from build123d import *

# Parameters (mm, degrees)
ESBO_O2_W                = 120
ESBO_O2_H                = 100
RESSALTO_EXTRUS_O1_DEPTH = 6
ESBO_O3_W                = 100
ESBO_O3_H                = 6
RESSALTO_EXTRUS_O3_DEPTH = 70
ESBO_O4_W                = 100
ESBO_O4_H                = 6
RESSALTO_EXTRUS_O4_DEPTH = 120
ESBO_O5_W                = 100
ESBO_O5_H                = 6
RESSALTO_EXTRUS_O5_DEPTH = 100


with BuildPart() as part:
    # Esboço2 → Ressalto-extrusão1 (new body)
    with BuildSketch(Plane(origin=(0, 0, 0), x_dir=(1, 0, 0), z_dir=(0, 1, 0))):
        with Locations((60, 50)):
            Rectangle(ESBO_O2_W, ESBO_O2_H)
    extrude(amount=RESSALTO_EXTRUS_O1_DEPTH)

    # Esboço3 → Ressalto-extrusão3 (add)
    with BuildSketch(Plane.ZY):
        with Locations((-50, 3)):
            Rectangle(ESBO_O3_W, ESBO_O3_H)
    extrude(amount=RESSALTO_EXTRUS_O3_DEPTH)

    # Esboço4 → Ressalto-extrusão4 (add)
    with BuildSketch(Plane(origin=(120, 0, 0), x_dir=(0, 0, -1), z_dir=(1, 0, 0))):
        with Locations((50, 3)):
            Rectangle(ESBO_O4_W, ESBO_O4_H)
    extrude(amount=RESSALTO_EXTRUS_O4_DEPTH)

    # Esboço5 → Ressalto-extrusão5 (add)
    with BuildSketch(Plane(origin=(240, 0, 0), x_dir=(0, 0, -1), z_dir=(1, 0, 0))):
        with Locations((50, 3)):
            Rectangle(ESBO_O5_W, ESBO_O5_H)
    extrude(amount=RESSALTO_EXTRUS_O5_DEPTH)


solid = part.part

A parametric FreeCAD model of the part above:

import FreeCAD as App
import Part
import Sketcher

V = App.Vector
Q = App.Units.Quantity


def add_polygon(sketch, points):
    """Adds a closed chain of lines whose ends are joined by coincident constraints."""
    first, n = sketch.GeometryCount, len(points)
    for a, b in zip(points, points[1:] + points[:1]):
        sketch.addGeometry(Part.LineSegment(App.Vector(*a, 0), App.Vector(*b, 0)), False)
    for i in range(n):
        sketch.addConstraint(Sketcher.Constraint("Coincident", first + i, 2, first + (i + 1) % n, 1))

doc = App.newDocument("Part")
params = doc.addObject("Spreadsheet::Sheet", "Params")
for row, (alias, value) in enumerate([
    ("sketch1_width", "120 mm"),
    ("sketch1_height", "100 mm"),
    ("pad1_length", "6 mm"),
    ("sketch2_width", "6 mm"),
    ("sketch2_height", "100 mm"),
    ("pad2_length", "70 mm"),
    ("sketch3_width", "6 mm"),
    ("sketch3_height", "100 mm"),
    ("pad3_length", "120 mm"),
    ("sketch4_width", "6 mm"),
    ("sketch4_height", "100 mm"),
    ("pad4_length", "100 mm"),
], start=1):
    params.set(f"A{row}", alias)
    params.set(f"B{row}", "=" + value)
    params.setAlias(f"B{row}", alias)

body = doc.addObject("PartDesign::Body", "Body")

sketch1 = doc.addObject("Sketcher::SketchObject", "Sketch")
body.addObject(sketch1)
sketch1.AttachmentSupport = (doc.XZ_Plane, [""])
sketch1.MapMode = "FlatFace"
add_polygon(sketch1, [(0, -100), (0, 0), (120, 0), (120, -100)])
sketch1.addConstraint(Sketcher.Constraint("Vertical", 0))
sketch1.addConstraint(Sketcher.Constraint("Horizontal", 1))
sketch1.addConstraint(Sketcher.Constraint("Vertical", 2))
sketch1.addConstraint(Sketcher.Constraint("Horizontal", 3))
sketch1.addConstraint(Sketcher.Constraint("Coincident", 0, 2, -1, 1))
sketch1.addConstraint(Sketcher.Constraint("DistanceX", 1, 1, 1, 2, Q("120 mm")))
sketch1.addConstraint(Sketcher.Constraint("DistanceY", 0, 1, 0, 2, Q("100 mm")))
sketch1.setExpression("Constraints[9]", "Params.sketch1_width")
sketch1.setExpression("Constraints[10]", "Params.sketch1_height")
pad1 = doc.addObject("PartDesign::Pad", "Pad")
body.addObject(pad1)
pad1.Profile = sketch1
pad1.setExpression("Length", "Params.pad1_length")
pad1.Reversed = True

sketch2 = doc.addObject("Sketcher::SketchObject", "Sketch001")
body.addObject(sketch2)
sketch2.AttachmentSupport = (doc.YZ_Plane, [""])
sketch2.MapMode = "FlatFace"
add_polygon(sketch2, [(6, -100), (0, -100), (0, 0), (6, 0)])
sketch2.addConstraint(Sketcher.Constraint("Horizontal", 0))
sketch2.addConstraint(Sketcher.Constraint("Vertical", 1))
sketch2.addConstraint(Sketcher.Constraint("Horizontal", 2))
sketch2.addConstraint(Sketcher.Constraint("Vertical", 3))
sketch2.addConstraint(Sketcher.Constraint("Coincident", 1, 2, -1, 1))
sketch2.addConstraint(Sketcher.Constraint("DistanceX", 0, 2, 0, 1, Q("6 mm")))
sketch2.addConstraint(Sketcher.Constraint("DistanceY", 1, 1, 1, 2, Q("100 mm")))
sketch2.setExpression("Constraints[9]", "Params.sketch2_width")
sketch2.setExpression("Constraints[10]", "Params.sketch2_height")
pad2 = doc.addObject("PartDesign::Pad", "Pad001")
body.addObject(pad2)
pad2.Profile = sketch2
pad2.setExpression("Length", "Params.pad2_length")
pad2.Reversed = True

sketch3 = doc.addObject("Sketcher::SketchObject", "Sketch002")
body.addObject(sketch3)
sketch3.AttachmentSupport = (doc.YZ_Plane, [""])
sketch3.MapMode = "FlatFace"
sketch3.AttachmentOffset = App.Placement(V(0, 0, 120), App.Rotation())
add_polygon(sketch3, [(6, 0), (0, 0), (0, -100), (6, -100)])
sketch3.addConstraint(Sketcher.Constraint("Horizontal", 0))
sketch3.addConstraint(Sketcher.Constraint("Vertical", 1))
sketch3.addConstraint(Sketcher.Constraint("Horizontal", 2))
sketch3.addConstraint(Sketcher.Constraint("Vertical", 3))
sketch3.addConstraint(Sketcher.Constraint("Coincident", 0, 2, -1, 1))
sketch3.addConstraint(Sketcher.Constraint("DistanceX", 0, 2, 0, 1, Q("6 mm")))
sketch3.addConstraint(Sketcher.Constraint("DistanceY", 1, 2, 1, 1, Q("100 mm")))
sketch3.setExpression("Constraints[9]", "Params.sketch3_width")
sketch3.setExpression("Constraints[10]", "Params.sketch3_height")
pad3 = doc.addObject("PartDesign::Pad", "Pad002")
body.addObject(pad3)
pad3.Profile = sketch3
pad3.setExpression("Length", "Params.pad3_length")

sketch4 = doc.addObject("Sketcher::SketchObject", "Sketch003")
body.addObject(sketch4)
sketch4.AttachmentSupport = (doc.YZ_Plane, [""])
sketch4.MapMode = "FlatFace"
sketch4.AttachmentOffset = App.Placement(V(0, 0, 240), App.Rotation())
add_polygon(sketch4, [(6, 0), (0, 0), (0, -100), (6, -100)])
sketch4.addConstraint(Sketcher.Constraint("Horizontal", 0))
sketch4.addConstraint(Sketcher.Constraint("Vertical", 1))
sketch4.addConstraint(Sketcher.Constraint("Horizontal", 2))
sketch4.addConstraint(Sketcher.Constraint("Vertical", 3))
sketch4.addConstraint(Sketcher.Constraint("Coincident", 0, 2, -1, 1))
sketch4.addConstraint(Sketcher.Constraint("DistanceX", 0, 2, 0, 1, Q("6 mm")))
sketch4.addConstraint(Sketcher.Constraint("DistanceY", 1, 2, 1, 1, Q("100 mm")))
sketch4.setExpression("Constraints[9]", "Params.sketch4_width")
sketch4.setExpression("Constraints[10]", "Params.sketch4_height")
pad4 = doc.addObject("PartDesign::Pad", "Pad003")
body.addObject(pad4)
pad4.Profile = sketch4
pad4.setExpression("Length", "Params.pad4_length")

doc.recompute()
